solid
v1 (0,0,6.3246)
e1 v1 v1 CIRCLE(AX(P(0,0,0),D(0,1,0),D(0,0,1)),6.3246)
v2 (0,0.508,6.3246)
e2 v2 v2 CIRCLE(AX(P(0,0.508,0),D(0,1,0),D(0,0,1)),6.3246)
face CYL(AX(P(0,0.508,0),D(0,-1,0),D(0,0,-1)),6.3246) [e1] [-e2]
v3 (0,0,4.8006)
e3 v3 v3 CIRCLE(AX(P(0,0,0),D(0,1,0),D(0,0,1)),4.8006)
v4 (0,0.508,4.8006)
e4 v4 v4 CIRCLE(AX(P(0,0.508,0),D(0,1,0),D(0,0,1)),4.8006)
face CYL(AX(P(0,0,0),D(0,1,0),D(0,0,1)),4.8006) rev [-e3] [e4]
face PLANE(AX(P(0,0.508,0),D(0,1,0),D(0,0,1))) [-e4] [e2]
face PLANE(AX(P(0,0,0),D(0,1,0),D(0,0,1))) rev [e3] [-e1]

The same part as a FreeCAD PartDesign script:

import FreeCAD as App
import Part
import Sketcher

V = App.Vector
Q = App.Units.Quantity

doc = App.newDocument("Part")
params = doc.addObject("Spreadsheet::Sheet", "Params")
for row, (alias, value) in enumerate([
    ("sketch1_diameter", "0.498 in"),
    ("pad1_length", "0.02 in"),
    ("sketch2_diameter", "0.378 in"),
], start=1):
    params.set(f"A{row}", alias)
    params.set(f"B{row}", "=" + value)
    params.setAlias(f"B{row}", alias)

body = doc.addObject("PartDesign::Body", "Body")

# Sketch on XZ plane
sketch1 = body.newObject("Sketcher::SketchObject", "Sketch")
sketch1.AttachmentSupport = (doc.getObject("XZ_Plane"), [""])
sketch1.MapMode = "FlatFace"
sketch1.addGeometry(Part.Circle(V(0, 0, 0), V(0, 0, 1), 6), False)
sketch1.addConstraint(Sketcher.Constraint("Coincident", 0, 3, -1, 1))
sketch1.addConstraint(Sketcher.Constraint("Diameter", 0, Q("0.498 in")))
sketch1.setExpression("Constraints[1]", "Params.sketch1_diameter")
pad1 = body.newObject("PartDesign::Pad", "Pad")
pad1.Profile = sketch1
pad1.setExpression("Length", "Params.pad1_length")
pad1.Reversed = True

# Sketch on XZ plane
sketch2 = body.newObject("Sketcher::SketchObject", "Sketch001")
sketch2.AttachmentSupport = (doc.getObject("XZ_Plane"), [""])
sketch2.MapMode = "FlatFace"
sketch2.AttachmentOffset = App.Placement(V(0, 0, -0.02 * 25.4), App.Rotation())
sketch2.addGeometry(Part.Circle(V(0, 0, 0), V(0, 0, 1), 4.8), False)
sketch2.addConstraint(Sketcher.Constraint("Coincident", 0, 3, -1, 1))
sketch2.addConstraint(Sketcher.Constraint("Diameter", 0, Q("0.378 in")))
sketch2.setExpression("Constraints[1]", "Params.sketch2_diameter")
pocket1 = body.newObject("PartDesign::Pocket", "Pocket")
pocket1.Profile = sketch2
pocket1.Type = "ThroughAll"
pocket1.Reversed = True

doc.recompute()
